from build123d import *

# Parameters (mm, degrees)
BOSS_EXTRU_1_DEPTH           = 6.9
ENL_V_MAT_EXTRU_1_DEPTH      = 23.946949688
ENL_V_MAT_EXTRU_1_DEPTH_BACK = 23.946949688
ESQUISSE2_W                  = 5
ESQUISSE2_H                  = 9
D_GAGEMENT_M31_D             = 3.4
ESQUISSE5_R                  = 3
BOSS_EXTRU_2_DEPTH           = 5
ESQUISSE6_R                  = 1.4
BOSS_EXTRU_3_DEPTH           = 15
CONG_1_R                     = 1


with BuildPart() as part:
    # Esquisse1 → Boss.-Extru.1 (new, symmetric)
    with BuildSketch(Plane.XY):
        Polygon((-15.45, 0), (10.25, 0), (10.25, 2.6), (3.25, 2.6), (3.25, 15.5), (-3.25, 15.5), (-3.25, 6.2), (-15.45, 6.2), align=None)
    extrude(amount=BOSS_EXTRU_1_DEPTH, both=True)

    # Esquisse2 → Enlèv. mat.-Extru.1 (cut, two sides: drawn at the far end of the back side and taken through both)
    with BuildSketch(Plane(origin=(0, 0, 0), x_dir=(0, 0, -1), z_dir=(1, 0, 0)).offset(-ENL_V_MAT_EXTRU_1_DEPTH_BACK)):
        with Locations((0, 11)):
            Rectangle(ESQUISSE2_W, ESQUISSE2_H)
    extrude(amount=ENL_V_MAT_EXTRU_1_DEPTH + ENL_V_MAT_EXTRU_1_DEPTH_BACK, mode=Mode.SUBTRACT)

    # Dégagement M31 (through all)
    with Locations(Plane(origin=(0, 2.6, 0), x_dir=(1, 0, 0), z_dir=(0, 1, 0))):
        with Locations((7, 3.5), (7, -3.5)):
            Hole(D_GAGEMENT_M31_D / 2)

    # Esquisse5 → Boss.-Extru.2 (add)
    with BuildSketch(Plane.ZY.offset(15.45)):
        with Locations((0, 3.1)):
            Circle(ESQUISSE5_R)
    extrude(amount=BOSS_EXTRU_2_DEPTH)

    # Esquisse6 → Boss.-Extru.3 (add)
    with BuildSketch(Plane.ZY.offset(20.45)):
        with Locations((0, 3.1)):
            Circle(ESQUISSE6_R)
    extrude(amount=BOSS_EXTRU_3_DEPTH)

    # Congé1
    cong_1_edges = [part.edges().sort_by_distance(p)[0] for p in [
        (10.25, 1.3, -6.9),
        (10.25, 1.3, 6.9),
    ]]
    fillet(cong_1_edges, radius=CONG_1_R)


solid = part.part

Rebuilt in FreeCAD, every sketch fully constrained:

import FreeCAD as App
import Part
import Sketcher
from FreeCAD import Vector
Q = App.Units.Quantity


def edges_at(feature, points):
    """Names of the edges that pass closest to the given points."""
    edges = feature.Shape.Edges
    near = lambda p: min(range(len(edges)), key=lambda i: edges[i].distToShape(Part.Vertex(*p))[0])
    return sorted({f"Edge{near(p) + 1}" for p in points})


def add_polygon(sketch, points):
    """Adds a closed chain of lines whose ends are joined by coincident constraints."""
    first, n = sketch.GeometryCount, len(points)
    for a, b in zip(points, points[1:] + points[:1]):
        sketch.addGeometry(Part.LineSegment(App.Vector(*a, 0), App.Vector(*b, 0)), False)
    for i in range(n):
        sketch.addConstraint(Sketcher.Constraint("Coincident", first + i, 2, first + (i + 1) % n, 1))

doc = App.newDocument("Part")
body = doc.addObject("PartDesign::Body", "Body")

sketch1 = body.newObject("Sketcher::SketchObject", "Sketch")
sketch1.AttachmentSupport = (doc.getObject("XY_Plane"), [""])
sketch1.MapMode = "FlatFace"
add_polygon(sketch1, [(-15.4, 0), (10.2, 0), (10.2, 2.6), (3.2, 2.6), (3.2, 15.5), (-3.2, 15.5), (-3.2, 6.2), (-15.4, 6.2)])
sketch1.addConstraint([
    Sketcher.Constraint("Horizontal", 0),
    Sketcher.Constraint("Vertical", 1),
    Sketcher.Constraint("Horizontal", 2),
    Sketcher.Constraint("Vertical", 3),
    Sketcher.Constraint("Horizontal", 4),
    Sketcher.Constraint("Vertical", 5),
    Sketcher.Constraint("Horizontal", 6),
    Sketcher.Constraint("Vertical", 7),
    Sketcher.Constraint("PointOnObject", 0, 2, -1),
    Sketcher.Constraint("DistanceX", 2, 2, 2, 1, Q("7 mm")),
    Sketcher.Constraint("DistanceX", 0, 1, 0, 2, Q("25.7 mm")),
    Sketcher.Constraint("DistanceX", 4, 2, 4, 1, Q("6.5 mm")),
    Sketcher.Constraint("DistanceY", 1, 1, 1, 2, Q("2.6 mm")),
    Sketcher.Constraint("DistanceY", 3, 1, 3, 2, Q("12.9 mm")),
    Sketcher.Constraint("DistanceY", 5, 2, 5, 1, Q("9.3 mm")),
    Sketcher.Constraint("DistanceX", -1, 1, 0, 2, Q("10.25 mm")),
])
pad1 = body.newObject("PartDesign::Pad", "Pad")
pad1.Profile = sketch1
pad1.Length = 13.8
pad1.Midplane = True

sketch2 = body.newObject("Sketcher::SketchObject", "Sketch001")
sketch2.AttachmentSupport = (doc.getObject("YZ_Plane"), [""])
sketch2.MapMode = "FlatFace"
add_polygon(sketch2, [(16, 2), (6, 2), (6, -2), (16, -2)])
sketch2.addConstraint([
    Sketcher.Constraint("Horizontal", 0),
    Sketcher.Constraint("Vertical", 1),
    Sketcher.Constraint("Horizontal", 2),
    Sketcher.Constraint("Vertical", 3),
    Sketcher.Constraint("DistanceX", 0, 2, 0, 1, Q("9 mm")),
    Sketcher.Constraint("DistanceY", 1, 2, 1, 1, Q("5 mm")),
    Sketcher.Constraint("DistanceX", -1, 1, 0, 2, Q("6.5 mm")),
    Sketcher.Constraint("DistanceY", -1, 1, 0, 2, Q("2.5 mm")),
])
pocket1 = body.newObject("PartDesign::Pocket", "Pocket")
pocket1.Profile = sketch2
pocket1.Type = "ThroughAll"
pocket1.Midplane = True

sketch3 = body.newObject("Sketcher::SketchObject", "Sketch002")
sketch3.AttachmentSupport = (doc.getObject("XZ_Plane"), [""])
sketch3.MapMode = "FlatFace"
sketch3.AttachmentOffset = App.Placement(Vector(0, 0, -2.6), App.Rotation())
sketch3.addGeometry([
    Part.Circle(Vector(7, -3.5, 0), Vector(0, 0, 1), 1.7),
    Part.Circle(Vector(7, 3.5, 0), Vector(0, 0, 1), 1.7),
], False)
sketch3.addConstraint([
    Sketcher.Constraint("Equal", 0, 1),
    Sketcher.Constraint("Symmetric", 0, 3, 1, 3, -1),
    Sketcher.Constraint("Diameter", 0, Q("3.4 mm")),
    Sketcher.Constraint("DistanceX", -1, 1, 0, 3, Q("7 mm")),
    Sketcher.Constraint("DistanceY", 0, 3, 1, 3, Q("7 mm")),
])
doc.recompute()
hole = body.newObject("PartDesign::Hole", "Hole")
hole.Profile = sketch3
hole.ThreadType = "None"
hole.Diameter = 3.4
hole.DepthType = "ThroughAll"
hole.Reversed = True

sketch4 = body.newObject("Sketcher::SketchObject", "Sketch003")
sketch4.AttachmentSupport = (doc.getObject("YZ_Plane"), [""])
sketch4.MapMode = "FlatFace"
sketch4.AttachmentOffset = App.Placement(Vector(0, 0, -15.45), App.Rotation())
sketch4.addGeometry(Part.Circle(Vector(3.1, 0, 0), Vector(0, 0, 1), 3), False)
sketch4.addConstraint([
    Sketcher.Constraint("PointOnObject", 0, 3, -1),
    Sketcher.Constraint("Diameter", 0, Q("6 mm")),
    Sketcher.Constraint("DistanceX", -1, 1, 0, 3, Q("3.1 mm")),
])
pad2 = body.newObject("PartDesign::Pad", "Pad001")
pad2.Profile = sketch4
pad2.Length = 5
pad2.Reversed = True

sketch5 = body.newObject("Sketcher::SketchObject", "Sketch004")
sketch5.AttachmentSupport = (doc.getObject("YZ_Plane"), [""])
sketch5.MapMode = "FlatFace"
sketch5.AttachmentOffset = App.Placement(Vector(0, 0, -20.45), App.Rotation())
sketch5.addGeometry(Part.Circle(Vector(3.1, 0, 0), Vector(0, 0, 1), 1.4), False)
sketch5.addConstraint([
    Sketcher.Constraint("PointOnObject", 0, 3, -1),
    Sketcher.Constraint("Diameter", 0, Q("2.8 mm")),
    Sketcher.Constraint("DistanceX", -1, 1, 0, 3, Q("3.1 mm")),
])
pad3 = body.newObject("PartDesign::Pad", "Pad002")
pad3.Profile = sketch5
pad3.Length = 15
pad3.Reversed = True
doc.recompute()

fillet = body.newObject("PartDesign::Fillet", "Fillet")
fillet.Base = (pad3, edges_at(pad3, [(10.25, 1.3, -6.9), (10.25, 1.3, 6.9)]))
fillet.Radius = 1

doc.recompute()
